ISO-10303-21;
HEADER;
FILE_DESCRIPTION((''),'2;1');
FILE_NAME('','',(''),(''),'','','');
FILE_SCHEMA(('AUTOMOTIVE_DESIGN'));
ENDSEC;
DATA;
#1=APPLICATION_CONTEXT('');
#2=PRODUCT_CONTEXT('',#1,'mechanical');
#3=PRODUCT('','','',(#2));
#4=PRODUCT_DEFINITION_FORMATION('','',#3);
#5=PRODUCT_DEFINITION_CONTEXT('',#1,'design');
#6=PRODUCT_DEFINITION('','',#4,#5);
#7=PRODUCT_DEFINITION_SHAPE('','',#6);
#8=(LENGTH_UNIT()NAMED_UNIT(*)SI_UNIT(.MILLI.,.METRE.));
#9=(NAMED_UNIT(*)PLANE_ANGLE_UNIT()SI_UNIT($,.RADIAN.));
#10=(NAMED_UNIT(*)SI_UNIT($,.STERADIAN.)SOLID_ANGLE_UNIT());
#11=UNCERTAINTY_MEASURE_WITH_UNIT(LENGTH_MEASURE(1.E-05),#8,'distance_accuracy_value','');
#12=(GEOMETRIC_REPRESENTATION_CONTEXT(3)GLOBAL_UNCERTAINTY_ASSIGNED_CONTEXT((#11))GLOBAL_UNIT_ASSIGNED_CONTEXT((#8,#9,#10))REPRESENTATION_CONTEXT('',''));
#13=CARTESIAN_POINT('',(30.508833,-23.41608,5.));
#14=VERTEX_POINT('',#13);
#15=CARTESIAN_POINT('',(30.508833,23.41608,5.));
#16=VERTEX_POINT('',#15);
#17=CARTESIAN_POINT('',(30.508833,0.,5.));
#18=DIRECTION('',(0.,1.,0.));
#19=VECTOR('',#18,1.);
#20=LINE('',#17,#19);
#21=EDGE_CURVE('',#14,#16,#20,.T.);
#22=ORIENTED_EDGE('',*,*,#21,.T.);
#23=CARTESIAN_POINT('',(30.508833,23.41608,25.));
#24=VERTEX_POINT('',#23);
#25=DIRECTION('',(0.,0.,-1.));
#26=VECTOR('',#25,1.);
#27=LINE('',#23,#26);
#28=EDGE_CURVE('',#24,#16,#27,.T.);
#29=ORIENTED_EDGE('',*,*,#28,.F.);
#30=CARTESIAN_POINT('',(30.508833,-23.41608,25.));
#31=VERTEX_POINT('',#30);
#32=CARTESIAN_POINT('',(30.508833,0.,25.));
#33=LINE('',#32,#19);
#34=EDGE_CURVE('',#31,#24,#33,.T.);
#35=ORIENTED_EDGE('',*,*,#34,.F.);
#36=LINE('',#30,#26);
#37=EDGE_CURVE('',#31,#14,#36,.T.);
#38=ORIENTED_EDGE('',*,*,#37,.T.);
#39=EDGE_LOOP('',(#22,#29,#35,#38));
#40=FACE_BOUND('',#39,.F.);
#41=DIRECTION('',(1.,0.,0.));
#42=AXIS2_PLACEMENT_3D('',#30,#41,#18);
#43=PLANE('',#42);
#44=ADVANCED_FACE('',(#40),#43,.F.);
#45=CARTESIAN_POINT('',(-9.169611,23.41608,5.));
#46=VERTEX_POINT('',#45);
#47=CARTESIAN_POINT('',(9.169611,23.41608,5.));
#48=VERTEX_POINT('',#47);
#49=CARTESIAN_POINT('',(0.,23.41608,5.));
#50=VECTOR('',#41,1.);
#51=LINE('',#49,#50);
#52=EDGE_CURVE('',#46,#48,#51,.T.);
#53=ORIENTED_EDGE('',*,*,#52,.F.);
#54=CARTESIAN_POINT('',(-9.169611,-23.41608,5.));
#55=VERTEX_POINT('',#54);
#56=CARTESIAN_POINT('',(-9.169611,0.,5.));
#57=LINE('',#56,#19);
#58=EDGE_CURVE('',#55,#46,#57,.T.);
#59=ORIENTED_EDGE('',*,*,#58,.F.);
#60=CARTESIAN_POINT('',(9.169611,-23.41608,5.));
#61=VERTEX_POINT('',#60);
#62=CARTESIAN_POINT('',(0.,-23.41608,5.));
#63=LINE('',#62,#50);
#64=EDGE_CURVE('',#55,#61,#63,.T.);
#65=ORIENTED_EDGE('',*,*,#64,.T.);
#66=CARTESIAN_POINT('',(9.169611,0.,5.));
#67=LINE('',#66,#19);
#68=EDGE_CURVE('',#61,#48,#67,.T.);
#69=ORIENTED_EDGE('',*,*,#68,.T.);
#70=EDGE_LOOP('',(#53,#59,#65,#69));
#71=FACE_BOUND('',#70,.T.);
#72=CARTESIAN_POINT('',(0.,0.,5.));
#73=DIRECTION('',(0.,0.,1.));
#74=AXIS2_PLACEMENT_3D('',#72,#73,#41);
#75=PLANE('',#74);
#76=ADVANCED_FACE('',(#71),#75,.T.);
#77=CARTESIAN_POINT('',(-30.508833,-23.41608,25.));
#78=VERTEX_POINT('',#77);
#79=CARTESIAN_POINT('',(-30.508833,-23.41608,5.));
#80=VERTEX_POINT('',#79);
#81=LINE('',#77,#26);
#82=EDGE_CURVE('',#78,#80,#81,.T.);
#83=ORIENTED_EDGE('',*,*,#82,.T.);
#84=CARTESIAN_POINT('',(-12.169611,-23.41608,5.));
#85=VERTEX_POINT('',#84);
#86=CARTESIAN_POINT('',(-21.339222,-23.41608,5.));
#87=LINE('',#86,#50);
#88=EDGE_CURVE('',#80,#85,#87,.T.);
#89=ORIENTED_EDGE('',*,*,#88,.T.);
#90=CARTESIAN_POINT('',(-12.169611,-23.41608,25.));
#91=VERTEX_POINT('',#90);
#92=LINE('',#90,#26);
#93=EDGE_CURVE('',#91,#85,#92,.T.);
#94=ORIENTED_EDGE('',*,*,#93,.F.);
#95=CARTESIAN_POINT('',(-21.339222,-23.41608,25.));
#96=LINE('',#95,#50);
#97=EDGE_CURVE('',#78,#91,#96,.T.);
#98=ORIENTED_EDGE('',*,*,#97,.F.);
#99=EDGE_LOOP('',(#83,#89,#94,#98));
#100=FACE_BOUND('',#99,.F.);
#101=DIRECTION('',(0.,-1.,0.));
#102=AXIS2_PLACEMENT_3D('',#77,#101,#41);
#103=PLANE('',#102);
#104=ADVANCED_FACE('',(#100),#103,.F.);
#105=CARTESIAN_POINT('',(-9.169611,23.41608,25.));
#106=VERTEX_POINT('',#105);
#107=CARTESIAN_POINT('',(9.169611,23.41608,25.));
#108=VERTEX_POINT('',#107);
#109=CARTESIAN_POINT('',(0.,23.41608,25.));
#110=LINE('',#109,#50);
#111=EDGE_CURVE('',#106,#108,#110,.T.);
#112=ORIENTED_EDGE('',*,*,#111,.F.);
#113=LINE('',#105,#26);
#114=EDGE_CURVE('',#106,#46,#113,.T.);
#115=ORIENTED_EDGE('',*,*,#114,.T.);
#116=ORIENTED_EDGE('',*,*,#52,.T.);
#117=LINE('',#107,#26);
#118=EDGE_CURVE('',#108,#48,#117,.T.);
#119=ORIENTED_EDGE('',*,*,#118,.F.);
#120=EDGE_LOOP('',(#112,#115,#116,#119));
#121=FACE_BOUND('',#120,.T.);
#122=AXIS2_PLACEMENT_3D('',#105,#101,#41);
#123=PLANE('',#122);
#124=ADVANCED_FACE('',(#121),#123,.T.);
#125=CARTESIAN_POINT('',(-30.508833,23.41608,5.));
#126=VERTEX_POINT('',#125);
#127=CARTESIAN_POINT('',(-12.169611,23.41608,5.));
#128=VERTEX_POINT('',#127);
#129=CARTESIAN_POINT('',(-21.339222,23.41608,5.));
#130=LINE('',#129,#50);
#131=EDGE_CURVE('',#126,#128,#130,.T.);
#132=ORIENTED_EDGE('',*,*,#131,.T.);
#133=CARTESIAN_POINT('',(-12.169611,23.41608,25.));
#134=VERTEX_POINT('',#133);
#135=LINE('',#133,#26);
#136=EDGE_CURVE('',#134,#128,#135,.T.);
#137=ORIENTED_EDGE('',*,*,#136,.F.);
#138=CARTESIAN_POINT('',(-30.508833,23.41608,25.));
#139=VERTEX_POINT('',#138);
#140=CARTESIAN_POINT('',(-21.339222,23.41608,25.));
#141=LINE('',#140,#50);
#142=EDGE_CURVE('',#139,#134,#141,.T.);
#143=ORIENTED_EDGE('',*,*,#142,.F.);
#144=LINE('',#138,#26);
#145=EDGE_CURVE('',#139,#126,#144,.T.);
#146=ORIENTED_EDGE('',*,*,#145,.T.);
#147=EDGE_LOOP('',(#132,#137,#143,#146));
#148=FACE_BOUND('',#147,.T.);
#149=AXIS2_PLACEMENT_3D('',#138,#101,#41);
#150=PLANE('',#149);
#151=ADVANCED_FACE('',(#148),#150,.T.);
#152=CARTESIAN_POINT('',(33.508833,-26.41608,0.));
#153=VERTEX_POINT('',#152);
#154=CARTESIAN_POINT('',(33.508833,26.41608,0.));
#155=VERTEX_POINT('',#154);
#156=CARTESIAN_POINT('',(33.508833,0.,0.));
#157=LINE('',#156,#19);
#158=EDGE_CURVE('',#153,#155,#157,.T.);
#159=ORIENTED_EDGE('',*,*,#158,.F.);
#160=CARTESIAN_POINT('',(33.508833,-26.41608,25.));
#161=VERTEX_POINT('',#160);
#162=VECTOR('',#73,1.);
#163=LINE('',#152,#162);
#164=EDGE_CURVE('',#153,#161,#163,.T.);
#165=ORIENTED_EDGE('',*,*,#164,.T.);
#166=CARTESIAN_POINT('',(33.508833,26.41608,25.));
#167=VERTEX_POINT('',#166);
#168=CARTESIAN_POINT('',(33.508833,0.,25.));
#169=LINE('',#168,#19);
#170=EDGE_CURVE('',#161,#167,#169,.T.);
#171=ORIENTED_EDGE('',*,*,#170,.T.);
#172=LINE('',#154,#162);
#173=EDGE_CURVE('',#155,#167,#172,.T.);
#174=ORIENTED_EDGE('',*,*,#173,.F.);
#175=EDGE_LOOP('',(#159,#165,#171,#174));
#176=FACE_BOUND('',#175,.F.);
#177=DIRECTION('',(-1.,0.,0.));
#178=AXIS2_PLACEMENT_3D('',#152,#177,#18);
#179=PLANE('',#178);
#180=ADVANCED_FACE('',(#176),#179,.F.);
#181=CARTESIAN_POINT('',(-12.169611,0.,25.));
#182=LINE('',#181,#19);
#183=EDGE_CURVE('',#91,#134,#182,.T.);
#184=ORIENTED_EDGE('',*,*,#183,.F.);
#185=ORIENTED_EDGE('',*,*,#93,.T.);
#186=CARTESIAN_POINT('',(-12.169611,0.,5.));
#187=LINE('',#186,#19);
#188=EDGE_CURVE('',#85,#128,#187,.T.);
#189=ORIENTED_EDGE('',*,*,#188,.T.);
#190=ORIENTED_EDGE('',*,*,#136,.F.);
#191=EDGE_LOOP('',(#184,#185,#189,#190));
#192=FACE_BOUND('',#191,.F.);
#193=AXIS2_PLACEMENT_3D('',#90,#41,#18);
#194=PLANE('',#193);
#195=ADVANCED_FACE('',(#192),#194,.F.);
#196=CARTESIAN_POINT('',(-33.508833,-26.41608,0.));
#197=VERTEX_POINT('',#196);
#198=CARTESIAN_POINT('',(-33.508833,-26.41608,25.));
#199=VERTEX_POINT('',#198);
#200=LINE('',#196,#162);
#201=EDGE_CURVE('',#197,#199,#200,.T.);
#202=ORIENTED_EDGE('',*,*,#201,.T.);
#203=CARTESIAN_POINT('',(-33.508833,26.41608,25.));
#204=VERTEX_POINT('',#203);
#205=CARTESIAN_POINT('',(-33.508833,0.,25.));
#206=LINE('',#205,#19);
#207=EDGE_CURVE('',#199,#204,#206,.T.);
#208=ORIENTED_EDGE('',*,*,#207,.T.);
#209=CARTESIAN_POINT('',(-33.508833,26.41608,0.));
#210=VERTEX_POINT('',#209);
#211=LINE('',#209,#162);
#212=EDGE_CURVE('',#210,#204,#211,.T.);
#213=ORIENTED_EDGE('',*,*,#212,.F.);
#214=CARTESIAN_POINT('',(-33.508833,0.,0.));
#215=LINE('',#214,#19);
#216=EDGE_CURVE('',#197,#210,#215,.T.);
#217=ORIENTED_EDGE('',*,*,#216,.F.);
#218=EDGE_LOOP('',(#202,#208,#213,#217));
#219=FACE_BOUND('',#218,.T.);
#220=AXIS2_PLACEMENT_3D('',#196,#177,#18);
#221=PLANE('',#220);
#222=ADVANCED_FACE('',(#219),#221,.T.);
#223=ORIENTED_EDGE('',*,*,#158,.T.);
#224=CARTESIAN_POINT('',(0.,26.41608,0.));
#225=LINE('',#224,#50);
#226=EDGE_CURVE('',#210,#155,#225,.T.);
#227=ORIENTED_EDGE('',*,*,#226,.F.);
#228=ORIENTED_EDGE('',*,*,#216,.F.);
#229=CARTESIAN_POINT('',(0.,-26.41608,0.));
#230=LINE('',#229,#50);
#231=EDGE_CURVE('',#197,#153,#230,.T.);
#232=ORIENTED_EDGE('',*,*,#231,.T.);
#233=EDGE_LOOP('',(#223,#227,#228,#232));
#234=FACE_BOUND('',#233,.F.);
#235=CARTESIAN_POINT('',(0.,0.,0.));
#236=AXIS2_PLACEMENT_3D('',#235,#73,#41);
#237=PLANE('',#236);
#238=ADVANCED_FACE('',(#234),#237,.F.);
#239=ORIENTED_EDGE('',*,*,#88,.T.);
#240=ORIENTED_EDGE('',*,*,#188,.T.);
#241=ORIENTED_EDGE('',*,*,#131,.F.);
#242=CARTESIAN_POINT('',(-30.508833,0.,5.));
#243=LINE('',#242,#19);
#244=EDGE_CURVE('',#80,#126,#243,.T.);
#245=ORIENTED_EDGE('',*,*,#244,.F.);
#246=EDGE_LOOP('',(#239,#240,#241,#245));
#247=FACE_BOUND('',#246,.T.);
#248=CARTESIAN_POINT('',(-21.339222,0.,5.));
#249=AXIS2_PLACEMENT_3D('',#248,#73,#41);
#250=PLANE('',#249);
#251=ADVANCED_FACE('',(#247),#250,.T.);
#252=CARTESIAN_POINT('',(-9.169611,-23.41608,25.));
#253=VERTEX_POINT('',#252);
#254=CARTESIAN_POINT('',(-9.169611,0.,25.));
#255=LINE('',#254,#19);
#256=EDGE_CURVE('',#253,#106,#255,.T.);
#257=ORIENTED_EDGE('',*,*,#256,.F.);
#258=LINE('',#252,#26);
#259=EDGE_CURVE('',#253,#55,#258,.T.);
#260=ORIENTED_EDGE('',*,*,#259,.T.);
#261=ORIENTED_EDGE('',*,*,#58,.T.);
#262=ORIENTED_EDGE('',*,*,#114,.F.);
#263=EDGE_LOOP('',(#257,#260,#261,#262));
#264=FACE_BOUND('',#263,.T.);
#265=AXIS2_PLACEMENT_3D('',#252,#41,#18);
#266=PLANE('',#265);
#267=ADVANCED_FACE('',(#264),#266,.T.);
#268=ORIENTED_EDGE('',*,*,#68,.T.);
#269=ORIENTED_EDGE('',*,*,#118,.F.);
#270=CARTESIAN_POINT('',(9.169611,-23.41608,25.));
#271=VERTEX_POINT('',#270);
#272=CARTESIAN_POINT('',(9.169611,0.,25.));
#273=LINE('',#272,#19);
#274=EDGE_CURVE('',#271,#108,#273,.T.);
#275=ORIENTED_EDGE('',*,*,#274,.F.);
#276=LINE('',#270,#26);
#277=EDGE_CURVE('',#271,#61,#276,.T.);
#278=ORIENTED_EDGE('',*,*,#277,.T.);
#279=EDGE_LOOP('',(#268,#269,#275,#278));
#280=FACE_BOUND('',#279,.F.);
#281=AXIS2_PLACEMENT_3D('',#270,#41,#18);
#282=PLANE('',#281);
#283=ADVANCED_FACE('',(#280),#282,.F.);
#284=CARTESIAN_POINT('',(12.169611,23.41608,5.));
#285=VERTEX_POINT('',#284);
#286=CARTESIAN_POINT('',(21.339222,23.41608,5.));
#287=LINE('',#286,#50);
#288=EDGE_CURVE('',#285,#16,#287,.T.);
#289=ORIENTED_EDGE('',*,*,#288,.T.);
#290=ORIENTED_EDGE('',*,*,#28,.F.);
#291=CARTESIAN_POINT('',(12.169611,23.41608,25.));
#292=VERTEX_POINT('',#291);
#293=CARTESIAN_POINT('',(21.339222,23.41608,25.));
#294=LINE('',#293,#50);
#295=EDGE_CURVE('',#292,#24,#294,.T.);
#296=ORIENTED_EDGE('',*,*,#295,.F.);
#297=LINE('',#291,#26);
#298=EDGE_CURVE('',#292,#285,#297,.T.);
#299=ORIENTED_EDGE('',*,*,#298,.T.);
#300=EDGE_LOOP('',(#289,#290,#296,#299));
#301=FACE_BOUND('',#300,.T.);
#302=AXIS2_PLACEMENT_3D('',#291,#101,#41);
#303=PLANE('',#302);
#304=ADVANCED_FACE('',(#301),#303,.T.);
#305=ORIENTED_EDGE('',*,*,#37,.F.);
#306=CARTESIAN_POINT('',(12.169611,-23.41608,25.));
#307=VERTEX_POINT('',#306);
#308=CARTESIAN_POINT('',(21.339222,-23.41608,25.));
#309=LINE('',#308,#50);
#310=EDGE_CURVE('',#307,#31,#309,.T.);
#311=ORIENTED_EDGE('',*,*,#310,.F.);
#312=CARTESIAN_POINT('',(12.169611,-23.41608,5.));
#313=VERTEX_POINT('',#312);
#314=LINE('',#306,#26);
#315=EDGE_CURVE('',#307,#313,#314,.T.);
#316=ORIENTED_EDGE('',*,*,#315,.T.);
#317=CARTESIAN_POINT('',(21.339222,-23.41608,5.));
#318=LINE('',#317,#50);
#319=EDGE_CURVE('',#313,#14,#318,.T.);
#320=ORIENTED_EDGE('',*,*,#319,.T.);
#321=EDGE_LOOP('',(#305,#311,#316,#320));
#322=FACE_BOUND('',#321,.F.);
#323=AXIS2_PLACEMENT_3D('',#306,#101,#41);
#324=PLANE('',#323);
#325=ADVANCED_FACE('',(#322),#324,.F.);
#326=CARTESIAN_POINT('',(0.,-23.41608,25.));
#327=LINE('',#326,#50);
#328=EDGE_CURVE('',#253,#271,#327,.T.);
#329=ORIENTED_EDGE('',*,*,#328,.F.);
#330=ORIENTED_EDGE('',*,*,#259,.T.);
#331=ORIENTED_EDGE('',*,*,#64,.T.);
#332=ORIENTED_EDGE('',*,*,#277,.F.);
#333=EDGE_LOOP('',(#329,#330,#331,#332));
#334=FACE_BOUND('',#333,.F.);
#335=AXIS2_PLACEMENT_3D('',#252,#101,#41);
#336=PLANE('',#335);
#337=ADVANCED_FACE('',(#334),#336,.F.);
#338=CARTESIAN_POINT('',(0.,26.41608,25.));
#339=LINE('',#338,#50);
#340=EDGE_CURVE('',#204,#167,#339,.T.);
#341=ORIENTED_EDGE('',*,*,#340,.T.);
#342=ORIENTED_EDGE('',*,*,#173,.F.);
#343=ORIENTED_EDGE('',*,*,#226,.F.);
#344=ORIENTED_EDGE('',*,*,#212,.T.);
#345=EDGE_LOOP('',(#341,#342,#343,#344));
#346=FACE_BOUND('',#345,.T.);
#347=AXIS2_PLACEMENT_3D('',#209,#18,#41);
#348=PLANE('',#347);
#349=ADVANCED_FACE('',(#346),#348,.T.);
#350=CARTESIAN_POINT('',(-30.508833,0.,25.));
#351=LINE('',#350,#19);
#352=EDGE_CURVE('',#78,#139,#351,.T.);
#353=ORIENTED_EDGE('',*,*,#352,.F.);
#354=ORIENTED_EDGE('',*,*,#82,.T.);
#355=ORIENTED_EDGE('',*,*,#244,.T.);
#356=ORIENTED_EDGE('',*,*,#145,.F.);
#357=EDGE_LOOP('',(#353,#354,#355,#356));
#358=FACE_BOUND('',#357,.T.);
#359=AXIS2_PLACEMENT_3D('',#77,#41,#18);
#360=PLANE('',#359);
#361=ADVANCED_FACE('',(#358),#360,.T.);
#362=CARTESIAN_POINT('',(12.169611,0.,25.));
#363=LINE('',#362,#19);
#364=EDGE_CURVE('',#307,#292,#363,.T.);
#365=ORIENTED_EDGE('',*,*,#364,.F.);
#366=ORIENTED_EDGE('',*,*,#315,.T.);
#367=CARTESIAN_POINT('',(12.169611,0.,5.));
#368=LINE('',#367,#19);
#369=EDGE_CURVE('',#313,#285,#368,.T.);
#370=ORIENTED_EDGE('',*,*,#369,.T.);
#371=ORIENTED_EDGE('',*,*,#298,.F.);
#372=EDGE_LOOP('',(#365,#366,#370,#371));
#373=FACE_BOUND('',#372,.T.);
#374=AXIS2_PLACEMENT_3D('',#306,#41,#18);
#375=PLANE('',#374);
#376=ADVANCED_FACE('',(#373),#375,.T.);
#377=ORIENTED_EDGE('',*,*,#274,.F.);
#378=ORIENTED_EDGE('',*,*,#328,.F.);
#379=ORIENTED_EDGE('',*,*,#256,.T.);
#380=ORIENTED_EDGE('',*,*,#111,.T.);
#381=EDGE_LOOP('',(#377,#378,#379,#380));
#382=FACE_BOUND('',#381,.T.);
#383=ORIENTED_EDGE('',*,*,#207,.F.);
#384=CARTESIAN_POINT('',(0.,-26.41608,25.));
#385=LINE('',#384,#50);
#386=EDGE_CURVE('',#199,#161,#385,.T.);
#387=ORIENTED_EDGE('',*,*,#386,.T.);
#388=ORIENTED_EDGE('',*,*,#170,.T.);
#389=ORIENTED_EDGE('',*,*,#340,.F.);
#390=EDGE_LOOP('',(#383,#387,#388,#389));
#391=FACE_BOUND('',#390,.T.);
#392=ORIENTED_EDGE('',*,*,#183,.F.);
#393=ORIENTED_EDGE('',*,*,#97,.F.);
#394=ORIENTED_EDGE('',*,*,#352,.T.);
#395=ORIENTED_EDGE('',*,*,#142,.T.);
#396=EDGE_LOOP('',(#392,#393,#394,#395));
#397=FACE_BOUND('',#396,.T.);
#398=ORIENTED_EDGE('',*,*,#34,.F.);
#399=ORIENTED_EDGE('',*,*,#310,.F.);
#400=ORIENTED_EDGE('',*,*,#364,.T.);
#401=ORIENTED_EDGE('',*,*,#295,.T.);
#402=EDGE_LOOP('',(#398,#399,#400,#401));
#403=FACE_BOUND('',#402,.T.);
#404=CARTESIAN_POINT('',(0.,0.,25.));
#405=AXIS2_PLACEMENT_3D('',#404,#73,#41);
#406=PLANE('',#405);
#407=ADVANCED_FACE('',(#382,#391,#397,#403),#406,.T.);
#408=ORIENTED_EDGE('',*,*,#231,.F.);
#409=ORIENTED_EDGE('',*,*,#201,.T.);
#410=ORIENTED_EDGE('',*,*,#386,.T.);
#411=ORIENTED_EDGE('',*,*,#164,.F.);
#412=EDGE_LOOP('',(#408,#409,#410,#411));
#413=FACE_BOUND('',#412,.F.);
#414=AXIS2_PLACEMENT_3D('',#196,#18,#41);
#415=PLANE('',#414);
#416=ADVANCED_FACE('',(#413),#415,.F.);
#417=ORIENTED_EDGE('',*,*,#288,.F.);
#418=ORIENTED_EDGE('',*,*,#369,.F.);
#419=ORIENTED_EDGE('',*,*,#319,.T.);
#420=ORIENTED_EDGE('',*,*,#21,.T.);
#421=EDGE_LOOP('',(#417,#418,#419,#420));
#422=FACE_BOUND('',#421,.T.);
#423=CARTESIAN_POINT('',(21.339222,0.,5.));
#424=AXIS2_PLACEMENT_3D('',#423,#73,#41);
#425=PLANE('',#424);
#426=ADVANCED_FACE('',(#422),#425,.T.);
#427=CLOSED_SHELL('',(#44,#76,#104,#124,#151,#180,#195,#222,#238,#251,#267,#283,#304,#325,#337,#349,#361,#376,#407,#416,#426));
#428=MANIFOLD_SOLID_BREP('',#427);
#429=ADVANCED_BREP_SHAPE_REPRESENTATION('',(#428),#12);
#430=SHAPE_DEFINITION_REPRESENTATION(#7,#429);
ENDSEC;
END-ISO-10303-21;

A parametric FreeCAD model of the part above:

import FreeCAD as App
import Part
import Sketcher
from FreeCAD import Vector
Q = App.Units.Quantity

doc = App.newDocument("Part")
params = doc.addObject("Spreadsheet::Sheet", "Params")
for row, (alias, value) in enumerate([
    ("pad1_length", "25 mm"),
    ("pocket1_length", "20 mm"),
], start=1):
    params.set(f"A{row}", alias)
    params.set(f"B{row}", "=" + value)
    params.setAlias(f"B{row}", alias)

body = doc.addObject("PartDesign::Body", "Body")

sketch1 = body.newObject("Sketcher::SketchObject", "Sketch")
sketch1.AttachmentSupport = (doc.getObject("XY_Plane"), [""])
sketch1.MapMode = "FlatFace"
sketch1.addGeometry(Part.LineSegment(Vector(-34, 26, 0), Vector(-34, -26, 0)), False)
sketch1.addGeometry(Part.LineSegment(Vector(-34, -26, 0), Vector(34, -26, 0)), False)
sketch1.addGeometry(Part.LineSegment(Vector(34, -26, 0), Vector(34, 26, 0)), False)
sketch1.addGeometry(Part.LineSegment(Vector(34, 26, 0), Vector(-34, 26, 0)), False)
sketch1.addConstraint(Sketcher.Constraint("Coincident", 0, 2, 1, 1))
sketch1.addConstraint(Sketcher.Constraint("Coincident", 1, 2, 2, 1))
sketch1.addConstraint(Sketcher.Constraint("Coincident", 2, 2, 3, 1))
sketch1.addConstraint(Sketcher.Constraint("Coincident", 3, 2, 0, 1))
sketch1.addConstraint(Sketcher.Constraint("Vertical", 0))
sketch1.addConstraint(Sketcher.Constraint("Horizontal", 1))
sketch1.addConstraint(Sketcher.Constraint("Vertical", 2))
sketch1.addConstraint(Sketcher.Constraint("Horizontal", 3))
sketch1.addConstraint(Sketcher.Constraint("Symmetric", 0, 2, 2, 2, -1, 1))
sketch1.addConstraint(Sketcher.Constraint("DistanceY", 0, 2, 0, 1, Q("52.83216 mm")))
sketch1.addConstraint(Sketcher.Constraint("DistanceX", 1, 1, 1, 2, Q("67.017666 mm")))
pad1 = body.newObject("PartDesign::Pad", "Pad")
pad1.Profile = sketch1
pad1.setExpression("Length", "Params.pad1_length")

sketch2 = body.newObject("Sketcher::SketchObject", "Sketch001")
sketch2.AttachmentSupport = (doc.getObject("XY_Plane"), [""])
sketch2.MapMode = "FlatFace"
sketch2.AttachmentOffset = App.Placement(Vector(0, 0, 25), App.Rotation())
sketch2.addGeometry(Part.LineSegment(Vector(-31, 23, 0), Vector(-31, -23, 0)), False)
sketch2.addGeometry(Part.LineSegment(Vector(-31, -23, 0), Vector(-12, -23, 0)), False)
sketch2.addGeometry(Part.LineSegment(Vector(-12, -23, 0), Vector(-12, 23, 0)), False)
sketch2.addGeometry(Part.LineSegment(Vector(-12, 23, 0), Vector(-31, 23, 0)), False)
sketch2.addGeometry(Part.LineSegment(Vector(-9, 23, 0), Vector(-9, -23, 0)), False)
sketch2.addGeometry(Part.LineSegment(Vector(-9, -23, 0), Vector(9, -23, 0)), False)
sketch2.addGeometry(Part.LineSegment(Vector(9, -23, 0), Vector(9, 23, 0)), False)
sketch2.addGeometry(Part.LineSegment(Vector(9, 23, 0), Vector(-9, 23, 0)), False)
sketch2.addGeometry(Part.LineSegment(Vector(12, 23, 0), Vector(12, -23, 0)), False)
sketch2.addGeometry(Part.LineSegment(Vector(12, -23, 0), Vector(31, -23, 0)), False)
sketch2.addGeometry(Part.LineSegment(Vector(31, -23, 0), Vector(31, 23, 0)), False)
sketch2.addGeometry(Part.LineSegment(Vector(31, 23, 0), Vector(12, 23, 0)), False)
sketch2.addConstraint(Sketcher.Constraint("Coincident", 0, 2, 1, 1))
sketch2.addConstraint(Sketcher.Constraint("Coincident", 1, 2, 2, 1))
sketch2.addConstraint(Sketcher.Constraint("Coincident", 2, 2, 3, 1))
sketch2.addConstraint(Sketcher.Constraint("Coincident", 3, 2, 0, 1))
sketch2.addConstraint(Sketcher.Constraint("Coincident", 4, 2, 5, 1))
sketch2.addConstraint(Sketcher.Constraint("Coincident", 5, 2, 6, 1))
sketch2.addConstraint(Sketcher.Constraint("Coincident", 6, 2, 7, 1))
sketch2.addConstraint(Sketcher.Constraint("Coincident", 7, 2, 4, 1))
sketch2.addConstraint(Sketcher.Constraint("Coincident", 8, 2, 9, 1))
sketch2.addConstraint(Sketcher.Constraint("Coincident", 9, 2, 10, 1))
sketch2.addConstraint(Sketcher.Constraint("Coincident", 10, 2, 11, 1))
sketch2.addConstraint(Sketcher.Constraint("Coincident", 11, 2, 8, 1))
sketch2.addConstraint(Sketcher.Constraint("Vertical", 0))
sketch2.addConstraint(Sketcher.Constraint("Horizontal", 1))
sketch2.addConstraint(Sketcher.Constraint("Vertical", 2))
sketch2.addConstraint(Sketcher.Constraint("Horizontal", 3))
sketch2.addConstraint(Sketcher.Constraint("Vertical", 4))
sketch2.addConstraint(Sketcher.Constraint("Horizontal", 5))
sketch2.addConstraint(Sketcher.Constraint("Vertical", 6))
sketch2.addConstraint(Sketcher.Constraint("Horizontal", 7))
sketch2.addConstraint(Sketcher.Constraint("Vertical", 8))
sketch2.addConstraint(Sketcher.Constraint("Horizontal", 9))
sketch2.addConstraint(Sketcher.Constraint("Vertical", 10))
sketch2.addConstraint(Sketcher.Constraint("Horizontal", 11))
sketch2.addConstraint(Sketcher.Constraint("Symmetric", 4, 2, 6, 2, -1, 1))
sketch2.addConstraint(Sketcher.Constraint("Symmetric", 2, 2, 8, 2, -1, 1))
sketch2.addConstraint(Sketcher.Constraint("Symmetric", 0, 2, 10, 2, -1, 1))
sketch2.addConstraint(Sketcher.Constraint("Horizontal", 1, 2, 4, 2))
sketch2.addConstraint(Sketcher.Constraint("Horizontal", 3, 2, 6, 2))
sketch2.addConstraint(Sketcher.Constraint("Equal", 3, 5))
sketch2.addConstraint(Sketcher.Constraint("DistanceX", 1, 2, 4, 2, Q("3 mm")))
sketch2.addConstraint(Sketcher.Constraint("DistanceX", 1, 1, 1, 2, Q("18.339222 mm")))
sketch2.addConstraint(Sketcher.Constraint("DistanceY", 0, 2, 0, 1, Q("46.83216 mm")))
pocket1 = body.newObject("PartDesign::Pocket", "Pocket")
pocket1.Profile = sketch2
pocket1.setExpression("Length", "Params.pocket1_length")

doc.recompute()
